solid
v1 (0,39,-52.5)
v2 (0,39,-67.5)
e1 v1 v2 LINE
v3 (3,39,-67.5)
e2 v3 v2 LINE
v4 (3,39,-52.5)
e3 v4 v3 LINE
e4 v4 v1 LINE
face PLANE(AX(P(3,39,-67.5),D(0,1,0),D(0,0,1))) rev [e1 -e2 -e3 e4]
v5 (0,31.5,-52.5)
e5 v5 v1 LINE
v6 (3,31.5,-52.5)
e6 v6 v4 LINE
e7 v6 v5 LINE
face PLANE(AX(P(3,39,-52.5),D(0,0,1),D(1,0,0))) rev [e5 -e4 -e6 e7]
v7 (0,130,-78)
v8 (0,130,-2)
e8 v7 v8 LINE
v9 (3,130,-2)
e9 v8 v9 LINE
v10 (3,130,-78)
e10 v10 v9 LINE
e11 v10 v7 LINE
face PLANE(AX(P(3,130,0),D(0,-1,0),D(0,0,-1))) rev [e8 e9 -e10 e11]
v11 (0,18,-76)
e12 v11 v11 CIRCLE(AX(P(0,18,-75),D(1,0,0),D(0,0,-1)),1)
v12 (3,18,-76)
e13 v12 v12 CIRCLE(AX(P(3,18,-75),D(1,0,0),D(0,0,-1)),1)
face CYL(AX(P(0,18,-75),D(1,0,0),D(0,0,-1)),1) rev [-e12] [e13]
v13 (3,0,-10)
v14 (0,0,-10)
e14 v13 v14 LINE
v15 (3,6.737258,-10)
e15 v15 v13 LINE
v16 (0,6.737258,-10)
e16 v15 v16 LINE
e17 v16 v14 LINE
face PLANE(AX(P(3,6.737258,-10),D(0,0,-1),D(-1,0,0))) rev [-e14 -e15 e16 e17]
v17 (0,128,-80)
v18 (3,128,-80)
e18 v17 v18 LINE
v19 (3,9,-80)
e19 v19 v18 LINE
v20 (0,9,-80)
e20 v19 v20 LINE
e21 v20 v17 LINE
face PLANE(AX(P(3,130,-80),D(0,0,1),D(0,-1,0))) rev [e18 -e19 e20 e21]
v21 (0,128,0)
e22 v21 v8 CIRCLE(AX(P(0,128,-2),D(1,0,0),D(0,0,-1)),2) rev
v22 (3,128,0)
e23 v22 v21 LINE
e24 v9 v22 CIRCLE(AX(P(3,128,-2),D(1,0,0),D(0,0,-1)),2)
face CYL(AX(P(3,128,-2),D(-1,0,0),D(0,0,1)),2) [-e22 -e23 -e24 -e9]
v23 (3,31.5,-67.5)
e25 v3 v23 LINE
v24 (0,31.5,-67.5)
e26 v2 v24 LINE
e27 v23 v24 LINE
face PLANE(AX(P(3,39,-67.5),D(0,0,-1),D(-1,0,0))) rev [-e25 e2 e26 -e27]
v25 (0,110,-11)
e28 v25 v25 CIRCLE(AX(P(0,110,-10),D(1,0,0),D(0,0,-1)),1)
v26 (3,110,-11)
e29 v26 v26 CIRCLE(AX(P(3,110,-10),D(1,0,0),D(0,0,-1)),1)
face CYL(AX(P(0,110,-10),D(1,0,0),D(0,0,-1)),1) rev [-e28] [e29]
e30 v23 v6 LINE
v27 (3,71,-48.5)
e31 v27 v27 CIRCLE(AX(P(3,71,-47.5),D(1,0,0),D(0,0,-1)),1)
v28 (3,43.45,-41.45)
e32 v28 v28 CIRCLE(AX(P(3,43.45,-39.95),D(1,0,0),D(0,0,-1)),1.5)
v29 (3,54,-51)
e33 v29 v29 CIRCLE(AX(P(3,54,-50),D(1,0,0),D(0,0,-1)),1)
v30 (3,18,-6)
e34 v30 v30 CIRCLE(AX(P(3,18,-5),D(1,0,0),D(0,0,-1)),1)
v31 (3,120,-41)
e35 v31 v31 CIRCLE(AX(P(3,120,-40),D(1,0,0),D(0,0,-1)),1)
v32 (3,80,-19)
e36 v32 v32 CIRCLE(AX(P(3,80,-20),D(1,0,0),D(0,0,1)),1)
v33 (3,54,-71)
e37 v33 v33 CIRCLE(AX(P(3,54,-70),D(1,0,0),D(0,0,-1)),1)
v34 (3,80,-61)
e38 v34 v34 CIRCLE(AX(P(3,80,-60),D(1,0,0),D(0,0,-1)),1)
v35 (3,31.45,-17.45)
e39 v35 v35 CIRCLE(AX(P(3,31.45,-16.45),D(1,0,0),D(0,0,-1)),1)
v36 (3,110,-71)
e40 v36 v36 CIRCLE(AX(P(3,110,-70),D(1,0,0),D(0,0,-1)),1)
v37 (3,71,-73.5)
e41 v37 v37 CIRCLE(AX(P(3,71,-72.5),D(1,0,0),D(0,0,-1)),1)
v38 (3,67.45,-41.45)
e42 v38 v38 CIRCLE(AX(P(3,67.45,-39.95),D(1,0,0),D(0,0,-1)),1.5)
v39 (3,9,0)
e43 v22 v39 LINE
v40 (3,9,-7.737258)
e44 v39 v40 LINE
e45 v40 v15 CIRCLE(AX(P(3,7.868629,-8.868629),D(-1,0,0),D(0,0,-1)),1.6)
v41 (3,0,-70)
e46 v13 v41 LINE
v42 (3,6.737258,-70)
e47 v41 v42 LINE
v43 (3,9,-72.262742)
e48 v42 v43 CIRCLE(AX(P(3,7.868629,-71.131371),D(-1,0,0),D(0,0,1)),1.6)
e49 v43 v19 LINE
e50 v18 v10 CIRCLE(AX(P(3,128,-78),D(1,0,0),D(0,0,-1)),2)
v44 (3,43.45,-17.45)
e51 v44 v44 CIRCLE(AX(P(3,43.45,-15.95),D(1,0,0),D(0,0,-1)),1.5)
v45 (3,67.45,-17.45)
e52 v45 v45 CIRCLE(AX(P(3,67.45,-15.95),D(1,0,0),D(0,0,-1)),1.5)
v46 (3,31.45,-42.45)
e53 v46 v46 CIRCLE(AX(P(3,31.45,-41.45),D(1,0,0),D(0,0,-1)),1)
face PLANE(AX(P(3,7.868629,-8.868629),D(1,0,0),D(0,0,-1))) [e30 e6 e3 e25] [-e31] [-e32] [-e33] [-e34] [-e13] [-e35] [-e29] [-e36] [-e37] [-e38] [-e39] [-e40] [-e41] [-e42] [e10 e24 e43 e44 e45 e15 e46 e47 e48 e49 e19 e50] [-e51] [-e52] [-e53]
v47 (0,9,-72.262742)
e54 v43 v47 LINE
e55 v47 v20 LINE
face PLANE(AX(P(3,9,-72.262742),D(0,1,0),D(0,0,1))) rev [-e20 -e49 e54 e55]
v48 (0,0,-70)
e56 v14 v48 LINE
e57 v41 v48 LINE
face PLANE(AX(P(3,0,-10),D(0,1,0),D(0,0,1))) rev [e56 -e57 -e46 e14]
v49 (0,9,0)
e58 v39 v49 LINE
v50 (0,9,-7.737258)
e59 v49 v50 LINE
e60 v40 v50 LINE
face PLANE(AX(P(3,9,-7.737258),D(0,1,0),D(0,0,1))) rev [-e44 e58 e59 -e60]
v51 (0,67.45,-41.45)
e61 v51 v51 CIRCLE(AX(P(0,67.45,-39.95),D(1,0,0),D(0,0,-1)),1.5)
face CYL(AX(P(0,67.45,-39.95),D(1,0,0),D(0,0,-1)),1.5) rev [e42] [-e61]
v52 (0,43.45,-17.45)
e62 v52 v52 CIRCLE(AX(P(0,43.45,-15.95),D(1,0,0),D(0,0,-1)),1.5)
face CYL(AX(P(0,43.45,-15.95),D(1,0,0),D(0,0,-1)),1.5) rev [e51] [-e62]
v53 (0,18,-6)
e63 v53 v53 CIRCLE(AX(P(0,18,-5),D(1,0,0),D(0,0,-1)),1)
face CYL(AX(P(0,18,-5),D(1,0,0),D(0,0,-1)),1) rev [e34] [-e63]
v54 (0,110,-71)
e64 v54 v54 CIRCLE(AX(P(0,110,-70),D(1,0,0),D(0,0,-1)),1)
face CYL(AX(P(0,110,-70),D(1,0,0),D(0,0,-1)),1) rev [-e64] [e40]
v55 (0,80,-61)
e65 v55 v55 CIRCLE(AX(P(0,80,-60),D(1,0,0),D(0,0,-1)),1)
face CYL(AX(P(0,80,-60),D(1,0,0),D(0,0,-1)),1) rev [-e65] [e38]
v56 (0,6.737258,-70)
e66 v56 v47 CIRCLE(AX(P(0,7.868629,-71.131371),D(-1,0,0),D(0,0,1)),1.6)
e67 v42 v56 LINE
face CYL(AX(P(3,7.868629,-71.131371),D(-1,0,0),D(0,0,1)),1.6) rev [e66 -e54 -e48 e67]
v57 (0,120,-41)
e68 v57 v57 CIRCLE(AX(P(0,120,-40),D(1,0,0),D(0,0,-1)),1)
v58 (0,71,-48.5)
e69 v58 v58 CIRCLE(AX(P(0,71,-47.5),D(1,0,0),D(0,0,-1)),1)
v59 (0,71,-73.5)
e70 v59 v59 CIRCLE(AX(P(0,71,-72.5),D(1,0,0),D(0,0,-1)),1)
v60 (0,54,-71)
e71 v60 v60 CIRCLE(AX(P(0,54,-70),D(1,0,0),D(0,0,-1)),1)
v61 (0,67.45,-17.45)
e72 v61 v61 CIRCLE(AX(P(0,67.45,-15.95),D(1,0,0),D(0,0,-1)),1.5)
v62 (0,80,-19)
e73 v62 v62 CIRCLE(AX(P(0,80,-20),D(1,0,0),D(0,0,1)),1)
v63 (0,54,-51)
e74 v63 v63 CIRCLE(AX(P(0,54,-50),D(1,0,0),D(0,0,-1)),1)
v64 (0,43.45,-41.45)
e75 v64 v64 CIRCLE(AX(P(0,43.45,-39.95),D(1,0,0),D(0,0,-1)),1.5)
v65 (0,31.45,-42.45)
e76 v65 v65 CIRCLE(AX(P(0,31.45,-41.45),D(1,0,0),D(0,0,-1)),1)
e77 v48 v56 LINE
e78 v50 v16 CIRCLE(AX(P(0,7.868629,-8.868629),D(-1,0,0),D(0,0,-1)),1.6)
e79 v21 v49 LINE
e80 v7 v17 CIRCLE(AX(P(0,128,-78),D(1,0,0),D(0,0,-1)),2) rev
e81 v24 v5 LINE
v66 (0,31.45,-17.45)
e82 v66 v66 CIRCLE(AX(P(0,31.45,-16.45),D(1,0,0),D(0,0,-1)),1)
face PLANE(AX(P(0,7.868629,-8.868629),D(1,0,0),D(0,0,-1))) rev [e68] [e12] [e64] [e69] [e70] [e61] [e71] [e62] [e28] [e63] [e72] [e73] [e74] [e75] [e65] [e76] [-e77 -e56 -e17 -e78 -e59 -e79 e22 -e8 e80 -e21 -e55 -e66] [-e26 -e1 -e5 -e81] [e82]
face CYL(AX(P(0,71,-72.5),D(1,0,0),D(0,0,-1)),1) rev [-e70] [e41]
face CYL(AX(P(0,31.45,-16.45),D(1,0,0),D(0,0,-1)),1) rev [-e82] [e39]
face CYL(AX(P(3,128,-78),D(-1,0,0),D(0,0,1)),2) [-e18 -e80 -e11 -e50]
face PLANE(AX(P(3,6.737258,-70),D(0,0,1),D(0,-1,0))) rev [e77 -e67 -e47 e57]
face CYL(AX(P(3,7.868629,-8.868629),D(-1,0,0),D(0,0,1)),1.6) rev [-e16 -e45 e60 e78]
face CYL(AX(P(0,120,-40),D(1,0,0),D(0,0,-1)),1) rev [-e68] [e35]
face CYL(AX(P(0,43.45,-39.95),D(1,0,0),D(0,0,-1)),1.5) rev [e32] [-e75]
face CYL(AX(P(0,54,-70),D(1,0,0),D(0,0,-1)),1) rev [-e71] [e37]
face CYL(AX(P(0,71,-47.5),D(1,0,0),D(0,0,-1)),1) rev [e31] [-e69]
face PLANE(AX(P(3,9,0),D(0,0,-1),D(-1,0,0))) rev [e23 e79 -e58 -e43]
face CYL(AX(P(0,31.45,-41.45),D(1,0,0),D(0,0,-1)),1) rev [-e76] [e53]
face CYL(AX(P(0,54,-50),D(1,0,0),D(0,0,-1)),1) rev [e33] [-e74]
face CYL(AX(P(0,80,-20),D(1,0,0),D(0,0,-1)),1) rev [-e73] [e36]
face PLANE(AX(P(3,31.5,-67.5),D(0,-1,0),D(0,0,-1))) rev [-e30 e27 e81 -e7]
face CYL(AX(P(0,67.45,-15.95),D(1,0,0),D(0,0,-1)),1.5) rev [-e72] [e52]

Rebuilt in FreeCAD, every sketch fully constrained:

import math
import FreeCAD as App
import Part
import Sketcher

V = App.Vector


def edges_at(feature, points):
    """Names of the edges that pass closest to the given points."""
    edges = feature.Shape.Edges
    near = lambda p: min(range(len(edges)), key=lambda i: edges[i].distToShape(Part.Vertex(*p))[0])
    return sorted({f"Edge{near(p) + 1}" for p in points})

doc = App.newDocument("Part")
body = doc.addObject("PartDesign::Body", "Body")

# Sketch on YZ plane
sketch1 = body.newObject("Sketcher::SketchObject", "Sketch")
sketch1.AttachmentSupport = (doc.getObject("YZ_Plane"), [""])
sketch1.MapMode = "FlatFace"
sketch1.addGeometry([
    Part.LineSegment(V(6.737258, -10, 0), V(0, -10, 0)),  # 0
    Part.LineSegment(V(0, -10, 0), V(0, -70, 0)),  # 1
    Part.LineSegment(V(0, -70, 0), V(6.737258, -70, 0)),  # 2
    Part.ArcOfCircle(Part.Circle(V(7.868629, -71.131371, 0), V(0, 0, 1), 1.6), math.radians(-45), math.radians(135)),  # 3
    Part.LineSegment(V(9, -72.262742, 0), V(9, -80, 0)),  # 4
    Part.LineSegment(V(9, -80, 0), V(130, -80, 0)),  # 5
    Part.LineSegment(V(130, -80, 0), V(130, 0, 0)),  # 6
    Part.LineSegment(V(130, 0, 0), V(9, 0, 0)),  # 7
    Part.LineSegment(V(9, 0, 0), V(9, -7.737258, 0)),  # 8
    Part.ArcOfCircle(Part.Circle(V(7.868629, -8.868629, 0), V(0, 0, 1), 1.6), math.radians(-135), math.radians(45)),  # 9
], False)
sketch1.addConstraint([
    Sketcher.Constraint("Coincident", 0, 2, 1, 1),
    Sketcher.Constraint("Coincident", 1, 2, 2, 1),
    Sketcher.Constraint("Coincident", 2, 2, 3, 2),
    Sketcher.Constraint("Coincident", 3, 1, 4, 1),
    Sketcher.Constraint("Coincident", 4, 2, 5, 1),
    Sketcher.Constraint("Coincident", 5, 2, 6, 1),
    Sketcher.Constraint("Coincident", 6, 2, 7, 1),
    Sketcher.Constraint("Coincident", 7, 2, 8, 1),
    Sketcher.Constraint("Coincident", 8, 2, 9, 2),
    Sketcher.Constraint("Coincident", 9, 1, 0, 1),
    Sketcher.Constraint("Horizontal", 0),
    Sketcher.Constraint("Vertical", 1),
    Sketcher.Constraint("Horizontal", 2),
    Sketcher.Constraint("Vertical", 4),
    Sketcher.Constraint("Horizontal", 5),
    Sketcher.Constraint("Vertical", 6),
    Sketcher.Constraint("Horizontal", 7),
    Sketcher.Constraint("Vertical", 8),
    Sketcher.Constraint("Equal", 3, 9),
    Sketcher.Constraint("PointOnObject", 0, 2, -2),
    Sketcher.Constraint("PointOnObject", 6, 2, -1),
    Sketcher.Constraint("Vertical", 3, 3, 9, 3),
    Sketcher.Constraint("Vertical", 4, 2, 7, 2),
    Sketcher.Constraint("Vertical", 2, 2, 9, 1),
    Sketcher.Constraint("Equal", 4, 8),
    Sketcher.Constraint("Radius", 3, 1.6),
    Sketcher.Constraint("DistanceX", 5, 1, 5, 2, 121.0),
    Sketcher.Constraint("DistanceY", 1, 2, 1, 1, 60.0),
    Sketcher.Constraint("DistanceY", 6, 1, 6, 2, 80.0),
    Sketcher.Constraint("DistanceX", -1, 1, 3, 1, 9.0),
    Sketcher.Constraint("DistanceX", 0, 2, 0, 1, 6.737258),
    Sketcher.Constraint("DistanceX", -1, 1, 3, 3, 7.868629),
])
pad1 = body.newObject("PartDesign::Pad", "Pad")
pad1.Profile = sketch1
pad1.Length = 3

# Sketch on YZ plane
sketch2 = body.newObject("Sketcher::SketchObject", "Sketch001")
sketch2.AttachmentSupport = (doc.getObject("YZ_Plane"), [""])
sketch2.MapMode = "FlatFace"
sketch2.AttachmentOffset = App.Placement(V(0, 0, 3), App.Rotation())
sketch2.addGeometry([
    Part.Circle(V(80, -60, 0), V(0, 0, 1), 1),  # 0
    Part.Circle(V(110, -10, 0), V(0, 0, 1), 1),  # 1
    Part.Circle(V(80, -20, 0), V(0, 0, 1), 1),  # 2
    Part.Circle(V(110, -70, 0), V(0, 0, 1), 1),  # 3
    Part.Circle(V(67.45, -15.95, 0), V(0, 0, 1), 1.5),  # 4
    Part.Circle(V(43.45, -15.95, 0), V(0, 0, 1), 1.5),  # 5
    Part.Circle(V(43.45, -39.95, 0), V(0, 0, 1), 1.5),  # 6
    Part.Circle(V(67.45, -39.95, 0), V(0, 0, 1), 1.5),  # 7
    Part.Circle(V(120, -40, 0), V(0, 0, 1), 1),  # 8
    Part.Circle(V(54, -70, 0), V(0, 0, 1), 1),  # 9
    Part.Circle(V(54, -50, 0), V(0, 0, 1), 1),  # 10
], False)
sketch2.addConstraint([
    Sketcher.Constraint("Equal", 0, 1),
    Sketcher.Constraint("Equal", 1, 2),
    Sketcher.Constraint("Equal", 2, 3),
    Sketcher.Constraint("Equal", 4, 5),
    Sketcher.Constraint("Equal", 5, 6),
    Sketcher.Constraint("Equal", 6, 7),
    Sketcher.Constraint("Equal", 3, 8),
    Sketcher.Constraint("Equal", 8, 9),
    Sketcher.Constraint("Equal", 9, 10),
    Sketcher.Constraint("Horizontal", 4, 3, 5, 3),
    Sketcher.Constraint("Horizontal", 6, 3, 7, 3),
    Sketcher.Constraint("Horizontal", 3, 3, 9, 3),
    Sketcher.Constraint("Vertical", 0, 3, 2, 3),
    Sketcher.Constraint("Vertical", 1, 3, 3, 3),
    Sketcher.Constraint("Vertical", 5, 3, 6, 3),
    Sketcher.Constraint("Vertical", 4, 3, 7, 3),
    Sketcher.Constraint("Vertical", 9, 3, 10, 3),
    Sketcher.Constraint("Diameter", 0, 2.0),
    Sketcher.Constraint("Diameter", 4, 3.0),
    Sketcher.Constraint("DistanceX", -1, 1, 0, 3, 80.0),
    Sketcher.Constraint("DistanceY", 0, 3, -1, 1, 60.0),
    Sketcher.Constraint("DistanceX", -1, 1, 1, 3, 110.0),
    Sketcher.Constraint("DistanceY", 1, 3, -1, 1, 10.0),
    Sketcher.Constraint("DistanceY", 2, 3, -1, 1, 20.0),
    Sketcher.Constraint("DistanceY", 3, 3, -1, 1, 70.0),
    Sketcher.Constraint("DistanceX", -1, 1, 8, 3, 120.0),
    Sketcher.Constraint("DistanceY", 8, 3, -1, 1, 40.0),
    Sketcher.Constraint("DistanceX", -1, 1, 9, 3, 54.0),
    Sketcher.Constraint("DistanceY", 10, 3, -1, 1, 50.0),
    Sketcher.Constraint("DistanceX", 5, 3, 4, 3, 24.0),
    Sketcher.Constraint("DistanceY", 6, 3, 5, 3, 24.0),
    Sketcher.Constraint("DistanceX", -1, 1, 4, 3, 67.45),
    Sketcher.Constraint("DistanceY", 4, 3, -1, 1, 15.95),
])
pocket1 = body.newObject("PartDesign::Pocket", "Pocket")
pocket1.Profile = sketch2
pocket1.Type = "ThroughAll"

# Sketch on YZ plane
sketch3 = body.newObject("Sketcher::SketchObject", "Sketch002")
sketch3.AttachmentSupport = (doc.getObject("YZ_Plane"), [""])
sketch3.MapMode = "FlatFace"
sketch3.addGeometry([
    Part.LineSegment(V(39, -67.5, 0), V(31.5, -67.5, 0)),
    Part.LineSegment(V(31.5, -67.5, 0), V(31.5, -52.5, 0)),
    Part.LineSegment(V(31.5, -52.5, 0), V(39, -52.5, 0)),
    Part.LineSegment(V(39, -52.5, 0), V(39, -67.5, 0)),
], False)
sketch3.addConstraint([
    Sketcher.Constraint("Coincident", 0, 2, 1, 1),
    Sketcher.Constraint("Coincident", 1, 2, 2, 1),
    Sketcher.Constraint("Coincident", 2, 2, 3, 1),
    Sketcher.Constraint("Coincident", 3, 2, 0, 1),
    Sketcher.Constraint("Horizontal", 0),
    Sketcher.Constraint("Vertical", 1),
    Sketcher.Constraint("Horizontal", 2),
    Sketcher.Constraint("Vertical", 3),
    Sketcher.Constraint("DistanceY", 1, 1, 1, 2, 15.0),
    Sketcher.Constraint("DistanceX", 0, 2, 0, 1, 7.5),
    Sketcher.Constraint("DistanceX", -1, 1, 2, 2, 39.0),
    Sketcher.Constraint("DistanceY", 0, 2, -1, 1, 67.5),
])
pocket2 = body.newObject("PartDesign::Pocket", "Pocket001")
pocket2.Profile = sketch3
pocket2.Type = "ThroughAll"
pocket2.Reversed = True

# Sketch on YZ plane
sketch4 = body.newObject("Sketcher::SketchObject", "Sketch003")
sketch4.AttachmentSupport = (doc.getObject("YZ_Plane"), [""])
sketch4.MapMode = "FlatFace"
sketch4.AttachmentOffset = App.Placement(V(0, 0, 3), App.Rotation())
sketch4.addGeometry([
    Part.Circle(V(18, -75, 0), V(0, 0, 1), 1),
    Part.Circle(V(18, -5, 0), V(0, 0, 1), 1),
], False)
sketch4.addConstraint([
    Sketcher.Constraint("Equal", 0, 1),
    Sketcher.Constraint("Vertical", 0, 3, 1, 3),
    Sketcher.Constraint("Diameter", 0, 2.0),
    Sketcher.Constraint("DistanceX", -1, 1, 0, 3, 18.0),
    Sketcher.Constraint("DistanceY", 0, 3, -1, 1, 75.0),
    Sketcher.Constraint("DistanceY", 1, 3, -1, 1, 5.0),
])
pocket3 = body.newObject("PartDesign::Pocket", "Pocket002")
pocket3.Profile = sketch4
pocket3.Type = "ThroughAll"
doc.recompute()

fillet = body.newObject("PartDesign::Fillet", "Fillet")
fillet.Base = (pocket3, edges_at(pocket3, [(1.5, 130, 0), (1.5, 130, -80)]))
fillet.Radius = 2

# Sketch on YZ plane
sketch5 = body.newObject("Sketcher::SketchObject", "Sketch004")
sketch5.AttachmentSupport = (doc.getObject("YZ_Plane"), [""])
sketch5.MapMode = "FlatFace"
sketch5.AttachmentOffset = App.Placement(V(0, 0, 3), App.Rotation())
sketch5.addGeometry([
    Part.Circle(V(31.45, -16.45, 0), V(0, 0, 1), 1),
    Part.Circle(V(31.45, -41.45, 0), V(0, 0, 1), 1),
    Part.Circle(V(71, -47.5, 0), V(0, 0, 1), 1),
    Part.Circle(V(71, -72.5, 0), V(0, 0, 1), 1),
], False)
sketch5.addConstraint([
    Sketcher.Constraint("Equal", 0, 1),
    Sketcher.Constraint("Equal", 1, 2),
    Sketcher.Constraint("Equal", 2, 3),
    Sketcher.Constraint("Vertical", 0, 3, 1, 3),
    Sketcher.Constraint("Vertical", 2, 3, 3, 3),
    Sketcher.Constraint("Diameter", 0, 2.0),
    Sketcher.Constraint("DistanceX", -1, 1, 2, 3, 71.0),
    Sketcher.Constraint("DistanceY", 1, 3, 0, 3, 25.0),
    Sketcher.Constraint("DistanceY", 3, 3, 2, 3, 25.0),
    Sketcher.Constraint("DistanceY", 2, 3, -1, 1, 47.5),
    Sketcher.Constraint("DistanceX", -1, 1, 0, 3, 31.45),
    Sketcher.Constraint("DistanceY", 0, 3, -1, 1, 16.45),
])
pocket4 = body.newObject("PartDesign::Pocket", "Pocket003")
pocket4.Profile = sketch5
pocket4.Type = "ThroughAll"

doc.recompute()
